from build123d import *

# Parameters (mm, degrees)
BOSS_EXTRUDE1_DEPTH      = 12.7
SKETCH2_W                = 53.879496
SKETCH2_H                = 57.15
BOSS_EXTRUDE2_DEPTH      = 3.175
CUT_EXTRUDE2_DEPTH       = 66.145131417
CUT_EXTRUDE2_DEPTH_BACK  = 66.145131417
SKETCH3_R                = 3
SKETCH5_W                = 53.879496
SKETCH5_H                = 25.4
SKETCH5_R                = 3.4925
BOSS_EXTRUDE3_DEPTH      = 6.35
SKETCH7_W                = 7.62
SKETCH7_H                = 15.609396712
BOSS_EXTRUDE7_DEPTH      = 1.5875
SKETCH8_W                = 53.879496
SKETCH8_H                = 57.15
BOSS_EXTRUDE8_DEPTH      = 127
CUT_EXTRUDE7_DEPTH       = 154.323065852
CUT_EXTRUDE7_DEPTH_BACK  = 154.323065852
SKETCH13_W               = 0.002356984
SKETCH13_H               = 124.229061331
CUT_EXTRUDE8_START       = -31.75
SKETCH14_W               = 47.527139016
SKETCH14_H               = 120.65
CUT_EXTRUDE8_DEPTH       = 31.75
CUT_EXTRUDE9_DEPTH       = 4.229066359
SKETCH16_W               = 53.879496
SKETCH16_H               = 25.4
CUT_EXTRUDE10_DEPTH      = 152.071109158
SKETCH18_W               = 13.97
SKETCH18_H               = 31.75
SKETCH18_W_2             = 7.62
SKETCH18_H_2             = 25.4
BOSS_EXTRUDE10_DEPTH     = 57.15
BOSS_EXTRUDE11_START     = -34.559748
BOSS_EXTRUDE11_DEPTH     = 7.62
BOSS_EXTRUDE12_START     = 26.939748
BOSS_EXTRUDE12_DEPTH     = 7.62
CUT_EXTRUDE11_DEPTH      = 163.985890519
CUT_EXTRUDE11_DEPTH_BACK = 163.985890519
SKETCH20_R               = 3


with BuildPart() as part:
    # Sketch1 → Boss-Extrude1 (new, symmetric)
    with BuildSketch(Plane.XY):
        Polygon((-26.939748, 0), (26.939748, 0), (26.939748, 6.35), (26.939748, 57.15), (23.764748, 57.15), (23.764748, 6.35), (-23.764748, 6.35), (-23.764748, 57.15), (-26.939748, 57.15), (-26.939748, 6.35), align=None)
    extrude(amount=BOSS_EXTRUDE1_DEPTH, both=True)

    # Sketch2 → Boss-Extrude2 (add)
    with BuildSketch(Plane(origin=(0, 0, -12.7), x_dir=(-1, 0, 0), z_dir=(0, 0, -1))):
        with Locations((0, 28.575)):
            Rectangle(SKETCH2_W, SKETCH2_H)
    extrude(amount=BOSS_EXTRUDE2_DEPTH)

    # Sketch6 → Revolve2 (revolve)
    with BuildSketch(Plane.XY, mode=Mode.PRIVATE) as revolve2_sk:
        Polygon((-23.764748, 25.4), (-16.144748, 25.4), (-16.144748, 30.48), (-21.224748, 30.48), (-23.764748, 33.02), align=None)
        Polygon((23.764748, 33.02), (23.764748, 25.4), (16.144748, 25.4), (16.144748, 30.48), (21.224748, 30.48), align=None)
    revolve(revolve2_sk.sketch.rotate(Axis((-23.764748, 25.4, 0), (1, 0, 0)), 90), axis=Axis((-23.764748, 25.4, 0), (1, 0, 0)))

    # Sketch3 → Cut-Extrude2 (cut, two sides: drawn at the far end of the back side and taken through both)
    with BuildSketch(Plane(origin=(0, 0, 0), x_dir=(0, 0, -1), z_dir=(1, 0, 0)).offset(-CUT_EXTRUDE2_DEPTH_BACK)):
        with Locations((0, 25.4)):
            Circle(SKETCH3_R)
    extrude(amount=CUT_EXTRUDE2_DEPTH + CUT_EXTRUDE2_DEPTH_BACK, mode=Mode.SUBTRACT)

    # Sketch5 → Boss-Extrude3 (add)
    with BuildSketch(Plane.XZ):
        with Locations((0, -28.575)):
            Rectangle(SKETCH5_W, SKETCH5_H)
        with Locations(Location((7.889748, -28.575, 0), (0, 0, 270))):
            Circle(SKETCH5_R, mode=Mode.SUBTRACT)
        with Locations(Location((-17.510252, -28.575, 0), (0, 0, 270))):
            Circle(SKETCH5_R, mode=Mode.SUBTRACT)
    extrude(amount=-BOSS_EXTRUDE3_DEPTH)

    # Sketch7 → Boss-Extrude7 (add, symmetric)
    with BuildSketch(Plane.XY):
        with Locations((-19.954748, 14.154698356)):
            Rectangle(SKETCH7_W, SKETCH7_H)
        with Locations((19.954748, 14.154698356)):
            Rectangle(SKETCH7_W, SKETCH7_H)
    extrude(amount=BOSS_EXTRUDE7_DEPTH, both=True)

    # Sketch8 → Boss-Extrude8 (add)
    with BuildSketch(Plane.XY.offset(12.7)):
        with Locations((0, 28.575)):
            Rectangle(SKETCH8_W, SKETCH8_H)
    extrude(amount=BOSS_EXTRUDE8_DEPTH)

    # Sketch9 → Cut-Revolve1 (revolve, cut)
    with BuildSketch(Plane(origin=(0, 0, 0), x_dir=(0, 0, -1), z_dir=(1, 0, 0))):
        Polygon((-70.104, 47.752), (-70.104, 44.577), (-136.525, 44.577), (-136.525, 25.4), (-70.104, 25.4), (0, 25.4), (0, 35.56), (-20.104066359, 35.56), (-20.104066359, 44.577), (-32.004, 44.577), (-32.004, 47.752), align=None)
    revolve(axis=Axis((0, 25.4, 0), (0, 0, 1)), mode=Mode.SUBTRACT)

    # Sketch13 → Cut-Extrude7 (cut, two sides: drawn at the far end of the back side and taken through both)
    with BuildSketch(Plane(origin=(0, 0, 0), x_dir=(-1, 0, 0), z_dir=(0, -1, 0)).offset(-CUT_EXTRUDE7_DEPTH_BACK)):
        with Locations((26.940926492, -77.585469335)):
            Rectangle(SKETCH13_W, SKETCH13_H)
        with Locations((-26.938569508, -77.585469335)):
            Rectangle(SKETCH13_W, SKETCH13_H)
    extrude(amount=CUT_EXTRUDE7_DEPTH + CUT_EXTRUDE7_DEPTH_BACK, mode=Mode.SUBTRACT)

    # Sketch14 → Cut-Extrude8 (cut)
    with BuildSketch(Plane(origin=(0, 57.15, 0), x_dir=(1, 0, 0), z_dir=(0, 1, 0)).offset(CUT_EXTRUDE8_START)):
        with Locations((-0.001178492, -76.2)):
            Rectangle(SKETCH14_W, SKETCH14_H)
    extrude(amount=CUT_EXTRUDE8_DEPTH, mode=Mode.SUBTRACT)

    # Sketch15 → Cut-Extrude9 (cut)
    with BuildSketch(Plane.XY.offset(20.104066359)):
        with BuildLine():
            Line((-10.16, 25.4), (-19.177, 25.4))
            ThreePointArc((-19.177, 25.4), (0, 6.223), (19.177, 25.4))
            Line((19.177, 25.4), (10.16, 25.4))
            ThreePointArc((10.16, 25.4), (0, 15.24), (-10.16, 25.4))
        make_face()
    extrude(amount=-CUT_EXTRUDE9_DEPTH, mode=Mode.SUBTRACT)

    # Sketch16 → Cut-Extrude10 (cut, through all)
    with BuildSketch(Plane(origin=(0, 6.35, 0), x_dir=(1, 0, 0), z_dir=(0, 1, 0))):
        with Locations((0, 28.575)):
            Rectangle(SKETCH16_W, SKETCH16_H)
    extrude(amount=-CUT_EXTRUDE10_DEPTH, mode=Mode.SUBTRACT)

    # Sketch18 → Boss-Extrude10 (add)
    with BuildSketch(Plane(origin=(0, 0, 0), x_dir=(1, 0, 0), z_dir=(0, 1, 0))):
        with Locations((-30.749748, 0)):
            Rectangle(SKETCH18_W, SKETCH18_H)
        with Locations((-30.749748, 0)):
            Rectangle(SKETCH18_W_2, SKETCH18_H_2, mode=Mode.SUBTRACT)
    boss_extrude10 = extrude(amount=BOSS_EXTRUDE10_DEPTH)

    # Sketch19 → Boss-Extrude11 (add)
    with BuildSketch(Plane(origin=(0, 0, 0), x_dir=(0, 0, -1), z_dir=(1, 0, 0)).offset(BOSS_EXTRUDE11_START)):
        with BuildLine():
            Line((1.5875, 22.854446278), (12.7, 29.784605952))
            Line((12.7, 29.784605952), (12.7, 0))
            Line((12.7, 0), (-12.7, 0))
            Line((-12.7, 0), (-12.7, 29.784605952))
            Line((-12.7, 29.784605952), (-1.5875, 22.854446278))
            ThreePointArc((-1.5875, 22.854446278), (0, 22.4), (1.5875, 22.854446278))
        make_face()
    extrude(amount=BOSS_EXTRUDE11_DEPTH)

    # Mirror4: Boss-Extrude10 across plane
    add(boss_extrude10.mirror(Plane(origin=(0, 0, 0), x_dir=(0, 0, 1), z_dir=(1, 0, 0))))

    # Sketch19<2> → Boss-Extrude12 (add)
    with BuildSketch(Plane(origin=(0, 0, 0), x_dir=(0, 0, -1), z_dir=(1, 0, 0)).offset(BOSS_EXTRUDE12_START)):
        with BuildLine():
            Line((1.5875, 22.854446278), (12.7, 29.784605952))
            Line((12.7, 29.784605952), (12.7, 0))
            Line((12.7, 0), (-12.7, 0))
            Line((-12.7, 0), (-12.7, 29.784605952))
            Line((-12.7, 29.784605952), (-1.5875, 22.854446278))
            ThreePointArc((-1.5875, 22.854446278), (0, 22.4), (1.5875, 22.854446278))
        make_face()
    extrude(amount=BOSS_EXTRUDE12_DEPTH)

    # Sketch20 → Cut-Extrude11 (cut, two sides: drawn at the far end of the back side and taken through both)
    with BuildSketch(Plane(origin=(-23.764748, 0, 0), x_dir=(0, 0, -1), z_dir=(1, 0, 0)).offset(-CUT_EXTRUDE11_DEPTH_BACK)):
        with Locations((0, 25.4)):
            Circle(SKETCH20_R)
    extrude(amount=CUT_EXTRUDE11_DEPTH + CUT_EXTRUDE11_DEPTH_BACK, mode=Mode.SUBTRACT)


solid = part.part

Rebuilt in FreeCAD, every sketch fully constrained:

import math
import FreeCAD as App
import Part
import Sketcher
Q = App.Units.Quantity

doc = App.newDocument("Part")
body = doc.addObject("PartDesign::Body", "Body")

sketch1 = body.newObject("Sketcher::SketchObject", "Sketch")
sketch1.AttachmentSupport = (doc.getObject("XY_Plane"), [""])
sketch1.MapMode = "FlatFace"
sketch1.addGeometry(Part.LineSegment(App.Vector(-26.9, 0, 0), App.Vector(26.9, 0, 0)), False)
sketch1.addGeometry(Part.LineSegment(App.Vector(26.9, 0, 0), App.Vector(26.9, 57.1, 0)), False)
sketch1.addGeometry(Part.LineSegment(App.Vector(26.9, 57.1, 0), App.Vector(23.8, 57.1, 0)), False)
sketch1.addGeometry(Part.LineSegment(App.Vector(23.8, 57.1, 0), App.Vector(23.8, 6.3, 0)), False)
sketch1.addGeometry(Part.LineSegment(App.Vector(23.8, 6.3, 0), App.Vector(-23.8, 6.3, 0)), False)
sketch1.addGeometry(Part.LineSegment(App.Vector(-23.8, 6.3, 0), App.Vector(-23.8, 57.1, 0)), False)
sketch1.addGeometry(Part.LineSegment(App.Vector(-23.8, 57.1, 0), App.Vector(-26.9, 57.1, 0)), False)
sketch1.addGeometry(Part.LineSegment(App.Vector(-26.9, 57.1, 0), App.Vector(-26.9, 0, 0)), False)
sketch1.addConstraint(Sketcher.Constraint("Coincident", 0, 2, 1, 1))
sketch1.addConstraint(Sketcher.Constraint("Coincident", 1, 2, 2, 1))
sketch1.addConstraint(Sketcher.Constraint("Coincident", 2, 2, 3, 1))
sketch1.addConstraint(Sketcher.Constraint("Coincident", 3, 2, 4, 1))
sketch1.addConstraint(Sketcher.Constraint("Coincident", 4, 2, 5, 1))
sketch1.addConstraint(Sketcher.Constraint("Coincident", 5, 2, 6, 1))
sketch1.addConstraint(Sketcher.Constraint("Coincident", 6, 2, 7, 1))
sketch1.addConstraint(Sketcher.Constraint("Coincident", 7, 2, 0, 1))
sketch1.addConstraint(Sketcher.Constraint("Horizontal", 0))
sketch1.addConstraint(Sketcher.Constraint("Vertical", 1))
sketch1.addConstraint(Sketcher.Constraint("Horizontal", 2))
sketch1.addConstraint(Sketcher.Constraint("Vertical", 3))
sketch1.addConstraint(Sketcher.Constraint("Horizontal", 4))
sketch1.addConstraint(Sketcher.Constraint("Vertical", 5))
sketch1.addConstraint(Sketcher.Constraint("Horizontal", 6))
sketch1.addConstraint(Sketcher.Constraint("Vertical", 7))
sketch1.addConstraint(Sketcher.Constraint("Symmetric", 0, 2, 7, 2, -1, 1))
sketch1.addConstraint(Sketcher.Constraint("Symmetric", 2, 2, 5, 2, -2))
sketch1.addConstraint(Sketcher.Constraint("DistanceY", 3, 2, 3, 1, Q("2 in")))
sketch1.addConstraint(Sketcher.Constraint("DistanceY", 1, 1, 1, 2, Q("2.25 in")))
sketch1.addConstraint(Sketcher.Constraint("DistanceX", 2, 2, 2, 1, Q("0.125 in")))
sketch1.addConstraint(Sketcher.Constraint("DistanceX", 0, 1, 0, 2, 53.879496))
pad1 = body.newObject("PartDesign::Pad", "Pad")
pad1.Profile = sketch1
pad1.Length = Q("1 in")
pad1.Midplane = True

sketch2 = body.newObject("Sketcher::SketchObject", "Sketch001")
sketch2.AttachmentSupport = (doc.getObject("XY_Plane"), [""])
sketch2.MapMode = "FlatFace"
sketch2.AttachmentOffset = App.Placement(App.Vector(0, 0, -0.5 * 25.4), App.Rotation())
sketch2.addGeometry(Part.LineSegment(App.Vector(27, 57, 0), App.Vector(27, 0, 0)), False)
sketch2.addGeometry(Part.LineSegment(App.Vector(27, 0, 0), App.Vector(-27, 0, 0)), False)
sketch2.addGeometry(Part.LineSegment(App.Vector(-27, 0, 0), App.Vector(-27, 57, 0)), False)
sketch2.addGeometry(Part.LineSegment(App.Vector(-27, 57, 0), App.Vector(27, 57, 0)), False)
sketch2.addConstraint(Sketcher.Constraint("Coincident", 0, 2, 1, 1))
sketch2.addConstraint(Sketcher.Constraint("Coincident", 1, 2, 2, 1))
sketch2.addConstraint(Sketcher.Constraint("Coincident", 2, 2, 3, 1))
sketch2.addConstraint(Sketcher.Constraint("Coincident", 3, 2, 0, 1))
sketch2.addConstraint(Sketcher.Constraint("Vertical", 0))
sketch2.addConstraint(Sketcher.Constraint("Horizontal", 1))
sketch2.addConstraint(Sketcher.Constraint("Vertical", 2))
sketch2.addConstraint(Sketcher.Constraint("Horizontal", 3))
sketch2.addConstraint(Sketcher.Constraint("Symmetric", 0, 2, 1, 2, -1, 1))
sketch2.addConstraint(Sketcher.Constraint("DistanceY", 0, 2, 0, 1, Q("2.25 in")))
sketch2.addConstraint(Sketcher.Constraint("DistanceX", 1, 2, 1, 1, 53.879496))
pad2 = body.newObject("PartDesign::Pad", "Pad001")
pad2.Profile = sketch2
pad2.Length = Q("0.125 in")
pad2.Reversed = True

sketch3 = body.newObject("Sketcher::SketchObject", "Sketch002")
sketch3.AttachmentSupport = (doc.getObject("XY_Plane"), [""])
sketch3.MapMode = "FlatFace"
sketch3.addGeometry(Part.LineSegment(App.Vector(-23.8, 25.4, 0), App.Vector(-16.1, 25.4, 0)), False)
sketch3.addGeometry(Part.LineSegment(App.Vector(-16.1, 25.4, 0), App.Vector(-16.1, 30.5, 0)), False)
sketch3.addGeometry(Part.LineSegment(App.Vector(-16.1, 30.5, 0), App.Vector(-21.2, 30.5, 0)), False)
sketch3.addGeometry(Part.LineSegment(App.Vector(-21.2, 30.5, 0), App.Vector(-23.8, 33, 0)), False)
sketch3.addGeometry(Part.LineSegment(App.Vector(-23.8, 33, 0), App.Vector(-23.8, 25.4, 0)), False)
sketch3.addGeometry(Part.LineSegment(App.Vector(23.8, 25.4, 0), App.Vector(23.8, 33, 0)), False)
sketch3.addGeometry(Part.LineSegment(App.Vector(23.8, 33, 0), App.Vector(21.2, 30.5, 0)), False)
sketch3.addGeometry(Part.LineSegment(App.Vector(21.2, 30.5, 0), App.Vector(16.1, 30.5, 0)), False)
sketch3.addGeometry(Part.LineSegment(App.Vector(16.1, 30.5, 0), App.Vector(16.1, 25.4, 0)), False)
sketch3.addGeometry(Part.LineSegment(App.Vector(16.1, 25.4, 0), App.Vector(23.8, 25.4, 0)), False)
sketch3.addGeometry(Part.LineSegment(App.Vector(-23.8, 25.4, 0), App.Vector(23.8, 25.4, 0)), True)
sketch3.addConstraint(Sketcher.Constraint("Coincident", 0, 2, 1, 1))
sketch3.addConstraint(Sketcher.Constraint("Coincident", 1, 2, 2, 1))
sketch3.addConstraint(Sketcher.Constraint("Coincident", 2, 2, 3, 1))
sketch3.addConstraint(Sketcher.Constraint("Coincident", 3, 2, 4, 1))
sketch3.addConstraint(Sketcher.Constraint("Coincident", 4, 2, 0, 1))
sketch3.addConstraint(Sketcher.Constraint("Coincident", 5, 2, 6, 1))
sketch3.addConstraint(Sketcher.Constraint("Coincident", 6, 2, 7, 1))
sketch3.addConstraint(Sketcher.Constraint("Coincident", 7, 2, 8, 1))
sketch3.addConstraint(Sketcher.Constraint("Coincident", 8, 2, 9, 1))
sketch3.addConstraint(Sketcher.Constraint("Coincident", 9, 2, 5, 1))
sketch3.addConstraint(Sketcher.Constraint("Horizontal", 0))
sketch3.addConstraint(Sketcher.Constraint("Vertical", 1))
sketch3.addConstraint(Sketcher.Constraint("Horizontal", 2))
sketch3.addConstraint(Sketcher.Constraint("Vertical", 4))
sketch3.addConstraint(Sketcher.Constraint("Vertical", 5))
sketch3.addConstraint(Sketcher.Constraint("Horizontal", 7))
sketch3.addConstraint(Sketcher.Constraint("Vertical", 8))
sketch3.addConstraint(Sketcher.Constraint("Horizontal", 9))
sketch3.addConstraint(Sketcher.Constraint("Horizontal", 10))
sketch3.addConstraint(Sketcher.Constraint("Coincident", 10, 1, 4, 2))
sketch3.addConstraint(Sketcher.Constraint("Coincident", 10, 2, 9, 2))
sketch3.addConstraint(Sketcher.Constraint("Symmetric", 3, 2, 5, 2, -2))
sketch3.addConstraint(Sketcher.Constraint("Symmetric", 2, 2, 6, 2, -2))
sketch3.addConstraint(Sketcher.Constraint("Perpendicular", 3, 6))
sketch3.addConstraint(Sketcher.Constraint("Equal", 2, 7))
sketch3.addConstraint(Sketcher.Constraint("Equal", 7, 1))
sketch3.addConstraint(Sketcher.Constraint("DistanceX", 0, 1, 0, 2, Q("0.3 in")))
sketch3.addConstraint(Sketcher.Constraint("DistanceX", 2, 2, 2, 1, Q("0.2 in")))
sketch3.addConstraint(Sketcher.Constraint("DistanceY", -1, 1, 0, 2, Q("1 in")))
sketch3.addConstraint(Sketcher.Constraint("DistanceX", 10, 1, 10, 2, 47.529496))
revolution = body.newObject("PartDesign::Revolution", "Revolution")
revolution.Profile = sketch3
revolution.ReferenceAxis = (sketch3, ["Axis0"])
revolution.Angle = 360

sketch4 = body.newObject("Sketcher::SketchObject", "Sketch003")
sketch4.AttachmentSupport = (doc.getObject("YZ_Plane"), [""])
sketch4.MapMode = "FlatFace"
sketch4.addGeometry(Part.Circle(App.Vector(25.4, 0, 0), App.Vector(0, 0, 1), 3), False)
sketch4.addConstraint(Sketcher.Constraint("PointOnObject", 0, 3, -1))
sketch4.addConstraint(Sketcher.Constraint("DistanceX", -1, 1, 0, 3, Q("1 in")))
sketch4.addConstraint(Sketcher.Constraint("Diameter", 0, 6.0))
pocket1 = body.newObject("PartDesign::Pocket", "Pocket")
pocket1.Profile = sketch4
pocket1.Type = "ThroughAll"
pocket1.Midplane = True

sketch5 = body.newObject("Sketcher::SketchObject", "Sketch004")
sketch5.AttachmentSupport = (doc.getObject("XZ_Plane"), [""])
sketch5.MapMode = "FlatFace"
sketch5.addGeometry(Part.LineSegment(App.Vector(-26.9, -15.9, 0), App.Vector(-26.9, -41.3, 0)), False)
sketch5.addGeometry(Part.LineSegment(App.Vector(-26.9, -41.3, 0), App.Vector(26.9, -41.3, 0)), False)
sketch5.addGeometry(Part.LineSegment(App.Vector(26.9, -41.3, 0), App.Vector(26.9, -15.9, 0)), False)
sketch5.addGeometry(Part.LineSegment(App.Vector(26.9, -15.9, 0), App.Vector(-26.9, -15.9, 0)), False)
sketch5.addGeometry(Part.Circle(App.Vector(-17.5, -28.6, 0), App.Vector(0, 0, 1), 3.5), False)
sketch5.addGeometry(Part.Circle(App.Vector(7.9, -28.6, 0), App.Vector(0, 0, 1), 3.5), False)
sketch5.addConstraint(Sketcher.Constraint("Coincident", 0, 2, 1, 1))
sketch5.addConstraint(Sketcher.Constraint("Coincident", 1, 2, 2, 1))
sketch5.addConstraint(Sketcher.Constraint("Coincident", 2, 2, 3, 1))
sketch5.addConstraint(Sketcher.Constraint("Coincident", 3, 2, 0, 1))
sketch5.addConstraint(Sketcher.Constraint("Vertical", 0))
sketch5.addConstraint(Sketcher.Constraint("Horizontal", 1))
sketch5.addConstraint(Sketcher.Constraint("Vertical", 2))
sketch5.addConstraint(Sketcher.Constraint("Horizontal", 3))
sketch5.addConstraint(Sketcher.Constraint("Equal", 4, 5))
sketch5.addConstraint(Sketcher.Constraint("Horizontal", 4, 3, 5, 3))
sketch5.addConstraint(Sketcher.Constraint("DistanceY", 0, 2, 0, 1, Q("1 in")))
sketch5.addConstraint(Sketcher.Constraint("Diameter", 4, Q("0.275 in")))
sketch5.addConstraint(Sketcher.Constraint("DistanceX", 4, 3, 5, 3, Q("1 in")))
sketch5.addConstraint(Sketcher.Constraint("DistanceY", 0, 2, 4, 3, Q("0.5 in")))
sketch5.addConstraint(Sketcher.Constraint("DistanceX", 5, 3, 1, 2, Q("0.75 in")))
sketch5.addConstraint(Sketcher.Constraint("DistanceY", 4, 3, -1, 1, Q("1.125 in")))
sketch5.addConstraint(Sketcher.Constraint("DistanceX", 1, 1, 1, 2, 53.879496))
sketch5.addConstraint(Sketcher.Constraint("DistanceX", 0, 2, -1, 1, 26.939748))
pad3 = body.newObject("PartDesign::Pad", "Pad002")
pad3.Profile = sketch5
pad3.Length = Q("0.25 in")
pad3.Reversed = True

sketch6 = body.newObject("Sketcher::SketchObject", "Sketch005")
sketch6.AttachmentSupport = (doc.getObject("XY_Plane"), [""])
sketch6.MapMode = "FlatFace"
sketch6.addGeometry(Part.LineSegment(App.Vector(-24, 22, 0), App.Vector(-24, 6, 0)), False)
sketch6.addGeometry(Part.LineSegment(App.Vector(-24, 6, 0), App.Vector(-16, 6, 0)), False)
sketch6.addGeometry(Part.LineSegment(App.Vector(-16, 6, 0), App.Vector(-16, 22, 0)), False)
sketch6.addGeometry(Part.LineSegment(App.Vector(-16, 22, 0), App.Vector(-24, 22, 0)), False)
sketch6.addGeometry(Part.LineSegment(App.Vector(16, 22, 0), App.Vector(16, 6, 0)), False)
sketch6.addGeometry(Part.LineSegment(App.Vector(16, 6, 0), App.Vector(24, 6, 0)), False)
sketch6.addGeometry(Part.LineSegment(App.Vector(24, 6, 0), App.Vector(24, 22, 0)), False)
sketch6.addGeometry(Part.LineSegment(App.Vector(24, 22, 0), App.Vector(16, 22, 0)), False)
sketch6.addConstraint(Sketcher.Constraint("Coincident", 0, 2, 1, 1))
sketch6.addConstraint(Sketcher.Constraint("Coincident", 1, 2, 2, 1))
sketch6.addConstraint(Sketcher.Constraint("Coincident", 2, 2, 3, 1))
sketch6.addConstraint(Sketcher.Constraint("Coincident", 3, 2, 0, 1))
sketch6.addConstraint(Sketcher.Constraint("Coincident", 4, 2, 5, 1))
sketch6.addConstraint(Sketcher.Constraint("Coincident", 5, 2, 6, 1))
sketch6.addConstraint(Sketcher.Constraint("Coincident", 6, 2, 7, 1))
sketch6.addConstraint(Sketcher.Constraint("Coincident", 7, 2, 4, 1))
sketch6.addConstraint(Sketcher.Constraint("Vertical", 0))
sketch6.addConstraint(Sketcher.Constraint("Horizontal", 1))
sketch6.addConstraint(Sketcher.Constraint("Vertical", 2))
sketch6.addConstraint(Sketcher.Constraint("Horizontal", 3))
sketch6.addConstraint(Sketcher.Constraint("Vertical", 4))
sketch6.addConstraint(Sketcher.Constraint("Horizontal", 5))
sketch6.addConstraint(Sketcher.Constraint("Vertical", 6))
sketch6.addConstraint(Sketcher.Constraint("Horizontal", 7))
sketch6.addConstraint(Sketcher.Constraint("Symmetric", 1, 2, 4, 2, -2))
sketch6.addConstraint(Sketcher.Constraint("Symmetric", 3, 2, 6, 2, -2))
sketch6.addConstraint(Sketcher.Constraint("DistanceX", 1, 1, 1, 2, Q("0.3 in")))
sketch6.addConstraint(Sketcher.Constraint("DistanceY", -1, 1, 0, 2, Q("0.25 in")))
sketch6.addConstraint(Sketcher.Constraint("DistanceY", 0, 2, 0, 1, 15.609397))
sketch6.addConstraint(Sketcher.Constraint("DistanceX", 0, 2, -1, 1, 23.764748))
pad4 = body.newObject("PartDesign::Pad", "Pad003")
pad4.Profile = sketch6
pad4.Length = Q("0.125 in")
pad4.Midplane = True

sketch7 = body.newObject("Sketcher::SketchObject", "Sketch006")
sketch7.AttachmentSupport = (doc.getObject("XY_Plane"), [""])
sketch7.MapMode = "FlatFace"
sketch7.AttachmentOffset = App.Placement(App.Vector(0, 0, 0.5 * 25.4), App.Rotation())
sketch7.addGeometry(Part.LineSegment(App.Vector(-27, 57, 0), App.Vector(-27, 0, 0)), False)
sketch7.addGeometry(Part.LineSegment(App.Vector(-27, 0, 0), App.Vector(27, 0, 0)), False)
sketch7.addGeometry(Part.LineSegment(App.Vector(27, 0, 0), App.Vector(27, 57, 0)), False)
sketch7.addGeometry(Part.LineSegment(App.Vector(27, 57, 0), App.Vector(-27, 57, 0)), False)
sketch7.addConstraint(Sketcher.Constraint("Coincident", 0, 2, 1, 1))
sketch7.addConstraint(Sketcher.Constraint("Coincident", 1, 2, 2, 1))
sketch7.addConstraint(Sketcher.Constraint("Coincident", 2, 2, 3, 1))
sketch7.addConstraint(Sketcher.Constraint("Coincident", 3, 2, 0, 1))
sketch7.addConstraint(Sketcher.Constraint("Vertical", 0))
sketch7.addConstraint(Sketcher.Constraint("Horizontal", 1))
sketch7.addConstraint(Sketcher.Constraint("Vertical", 2))
sketch7.addConstraint(Sketcher.Constraint("Horizontal", 3))
sketch7.addConstraint(Sketcher.Constraint("Symmetric", 0, 2, 1, 2, -1, 1))
sketch7.addConstraint(Sketcher.Constraint("DistanceY", 0, 2, 0, 1, Q("2.25 in")))
sketch7.addConstraint(Sketcher.Constraint("DistanceX", 1, 1, 1, 2, 53.879496))
pad5 = body.newObject("PartDesign::Pad", "Pad004")
pad5.Profile = sketch7
pad5.Length = Q("5 in")

sketch8 = body.newObject("Sketcher::SketchObject", "Sketch007")
sketch8.AttachmentSupport = (doc.getObject("YZ_Plane"), [""])
sketch8.MapMode = "FlatFace"
sketch8.addGeometry(Part.LineSegment(App.Vector(47.8, 70.1, 0), App.Vector(44.6, 70.1, 0)), False)
sketch8.addGeometry(Part.LineSegment(App.Vector(44.6, 70.1, 0), App.Vector(44.6, 136.5, 0)), False)
sketch8.addGeometry(Part.LineSegment(App.Vector(44.6, 136.5, 0), App.Vector(25.4, 136.5, 0)), False)
sketch8.addGeometry(Part.LineSegment(App.Vector(25.4, 136.5, 0), App.Vector(25.4, 0, 0)), False)
sketch8.addGeometry(Part.LineSegment(App.Vector(25.4, 0, 0), App.Vector(35.6, 0, 0)), False)
sketch8.addGeometry(Part.LineSegment(App.Vector(35.6, 0, 0), App.Vector(35.6, 20.1, 0)), False)
sketch8.addGeometry(Part.LineSegment(App.Vector(35.6, 20.1, 0), App.Vector(44.6, 20.1, 0)), False)
sketch8.addGeometry(Part.LineSegment(App.Vector(44.6, 20.1, 0), App.Vector(44.6, 32, 0)), False)
sketch8.addGeometry(Part.LineSegment(App.Vector(44.6, 32, 0), App.Vector(47.8, 32, 0)), False)
sketch8.addGeometry(Part.LineSegment(App.Vector(47.8, 32, 0), App.Vector(47.8, 70.1, 0)), False)
sketch8.addGeometry(Part.LineSegment(App.Vector(25.4, 0, 0), App.Vector(25.4, 136.5, 0)), True)
sketch8.addConstraint(Sketcher.Constraint("Coincident", 0, 2, 1, 1))
sketch8.addConstraint(Sketcher.Constraint("Coincident", 1, 2, 2, 1))
sketch8.addConstraint(Sketcher.Constraint("Coincident", 2, 2, 3, 1))
sketch8.addConstraint(Sketcher.Constraint("Coincident", 3, 2, 4, 1))
sketch8.addConstraint(Sketcher.Constraint("Coincident", 4, 2, 5, 1))
sketch8.addConstraint(Sketcher.Constraint("Coincident", 5, 2, 6, 1))
sketch8.addConstraint(Sketcher.Constraint("Coincident", 6, 2, 7, 1))
sketch8.addConstraint(Sketcher.Constraint("Coincident", 7, 2, 8, 1))
sketch8.addConstraint(Sketcher.Constraint("Coincident", 8, 2, 9, 1))
sketch8.addConstraint(Sketcher.Constraint("Coincident", 9, 2, 0, 1))
sketch8.addConstraint(Sketcher.Constraint("Horizontal", 0))
sketch8.addConstraint(Sketcher.Constraint("Vertical", 1))
sketch8.addConstraint(Sketcher.Constraint("Horizontal", 2))
sketch8.addConstraint(Sketcher.Constraint("Vertical", 3))
sketch8.addConstraint(Sketcher.Constraint("Horizontal", 4))
sketch8.addConstraint(Sketcher.Constraint("Vertical", 5))
sketch8.addConstraint(Sketcher.Constraint("Horizontal", 6))
sketch8.addConstraint(Sketcher.Constraint("Vertical", 7))
sketch8.addConstraint(Sketcher.Constraint("Horizontal", 8))
sketch8.addConstraint(Sketcher.Constraint("Vertical", 9))
sketch8.addConstraint(Sketcher.Constraint("Vertical", 10))
sketch8.addConstraint(Sketcher.Constraint("Coincident", 10, 1, 3, 2))
sketch8.addConstraint(Sketcher.Constraint("PointOnObject", 3, 2, -1))
sketch8.addConstraint(Sketcher.Constraint("Horizontal", 1, 2, 10, 2))
sketch8.addConstraint(Sketcher.Constraint("Vertical", 1, 2, 6, 2))
sketch8.addConstraint(Sketcher.Constraint("DistanceX", 4, 1, 4, 2, Q("0.4 in")))
sketch8.addConstraint(Sketcher.Constraint("DistanceY", 9, 1, 9, 2, Q("1.5 in")))
sketch8.addConstraint(Sketcher.Constraint("DistanceX", -1, 1, 2, 2, Q("1 in")))
sketch8.addConstraint(Sketcher.Constraint("DistanceX", 0, 2, 0, 1, Q("0.125 in")))
sketch8.addConstraint(Sketcher.Constraint("DistanceX", 2, 2, 2, 1, Q("0.755 in")))
sketch8.addConstraint(Sketcher.Constraint("DistanceY", 1, 1, 1, 2, Q("2.615 in")))
sketch8.addConstraint(Sketcher.Constraint("DistanceY", 3, 2, 3, 1, Q("5.375 in")))
sketch8.addConstraint(Sketcher.Constraint("DistanceY", 5, 1, 5, 2, 20.104066))
groove = body.newObject("PartDesign::Groove", "Groove")
groove.Profile = sketch8
groove.ReferenceAxis = (sketch8, ["Axis0"])
groove.Angle = 360

sketch9 = body.newObject("Sketcher::SketchObject", "Sketch008")
sketch9.AttachmentSupport = (doc.getObject("XZ_Plane"), [""])
sketch9.MapMode = "FlatFace"
sketch9.addGeometry(Part.LineSegment(App.Vector(-26.9397, 15.4709, 0), App.Vector(-26.9397, 139.7, 0)), False)
sketch9.addGeometry(Part.LineSegment(App.Vector(-26.9397, 139.7, 0), App.Vector(-26.9421, 139.7, 0)), False)
sketch9.addGeometry(Part.LineSegment(App.Vector(-26.9421, 139.7, 0), App.Vector(-26.9421, 15.4709, 0)), False)
sketch9.addGeometry(Part.LineSegment(App.Vector(-26.9421, 15.4709, 0), App.Vector(-26.9397, 15.4709, 0)), False)
sketch9.addGeometry(Part.LineSegment(App.Vector(26.9397, 15.4709, 0), App.Vector(26.9397, 139.7, 0)), False)
sketch9.addGeometry(Part.LineSegment(App.Vector(26.9397, 139.7, 0), App.Vector(26.9374, 139.7, 0)), False)
sketch9.addGeometry(Part.LineSegment(App.Vector(26.9374, 139.7, 0), App.Vector(26.9374, 15.4709, 0)), False)
sketch9.addGeometry(Part.LineSegment(App.Vector(26.9374, 15.4709, 0), App.Vector(26.9397, 15.4709, 0)), False)
sketch9.addConstraint(Sketcher.Constraint("Coincident", 0, 2, 1, 1))
sketch9.addConstraint(Sketcher.Constraint("Coincident", 1, 2, 2, 1))
sketch9.addConstraint(Sketcher.Constraint("Coincident", 2, 2, 3, 1))
sketch9.addConstraint(Sketcher.Constraint("Coincident", 3, 2, 0, 1))
sketch9.addConstraint(Sketcher.Constraint("Coincident", 4, 2, 5, 1))
sketch9.addConstraint(Sketcher.Constraint("Coincident", 5, 2, 6, 1))
sketch9.addConstraint(Sketcher.Constraint("Coincident", 6, 2, 7, 1))
sketch9.addConstraint(Sketcher.Constraint("Coincident", 7, 2, 4, 1))
sketch9.addConstraint(Sketcher.Constraint("Vertical", 0))
sketch9.addConstraint(Sketcher.Constraint("Horizontal", 1))
sketch9.addConstraint(Sketcher.Constraint("Vertical", 2))
sketch9.addConstraint(Sketcher.Constraint("Horizontal", 3))
sketch9.addConstraint(Sketcher.Constraint("Vertical", 4))
sketch9.addConstraint(Sketcher.Constraint("Horizontal", 5))
sketch9.addConstraint(Sketcher.Constraint("Vertical", 6))
sketch9.addConstraint(Sketcher.Constraint("Horizontal", 7))
sketch9.addConstraint(Sketcher.Constraint("Symmetric", 0, 2, 4, 2, -2))
sketch9.addConstraint(Sketcher.Constraint("Horizontal", 3, 2, 6, 2))
sketch9.addConstraint(Sketcher.Constraint("Equal", 3, 5))
sketch9.addConstraint(Sketcher.Constraint("DistanceY", -1, 1, 0, 2, Q("5.5 in")))
sketch9.addConstraint(Sketcher.Constraint("DistanceY", 0, 1, 0, 2, 124.229061))
sketch9.addConstraint(Sketcher.Constraint("DistanceX", 1, 2, 1, 1, 0.002357))
sketch9.addConstraint(Sketcher.Constraint("DistanceX", 0, 2, -1, 1, 26.939748))
pocket2 = body.newObject("PartDesign::Pocket", "Pocket001")
pocket2.Profile = sketch9
pocket2.Type = "ThroughAll"
pocket2.Midplane = True

sketch10 = body.newObject("Sketcher::SketchObject", "Sketch009")
sketch10.AttachmentSupport = (doc.getObject("XZ_Plane"), [""])
sketch10.MapMode = "FlatFace"
sketch10.AttachmentOffset = App.Placement(App.Vector(0, 0, -1 * 25.4), App.Rotation())
sketch10.addGeometry(Part.LineSegment(App.Vector(-24, 16, 0), App.Vector(-24, 137, 0)), False)
sketch10.addGeometry(Part.LineSegment(App.Vector(-24, 137, 0), App.Vector(24, 137, 0)), False)
sketch10.addGeometry(Part.LineSegment(App.Vector(24, 137, 0), App.Vector(24, 16, 0)), False)
sketch10.addGeometry(Part.LineSegment(App.Vector(24, 16, 0), App.Vector(-24, 16, 0)), False)
sketch10.addConstraint(Sketcher.Constraint("Coincident", 0, 2, 1, 1))
sketch10.addConstraint(Sketcher.Constraint("Coincident", 1, 2, 2, 1))
sketch10.addConstraint(Sketcher.Constraint("Coincident", 2, 2, 3, 1))
sketch10.addConstraint(Sketcher.Constraint("Coincident", 3, 2, 0, 1))
sketch10.addConstraint(Sketcher.Constraint("Vertical", 0))
sketch10.addConstraint(Sketcher.Constraint("Horizontal", 1))
sketch10.addConstraint(Sketcher.Constraint("Vertical", 2))
sketch10.addConstraint(Sketcher.Constraint("Horizontal", 3))
sketch10.addConstraint(Sketcher.Constraint("DistanceY", 0, 1, 0, 2, Q("4.75 in")))
sketch10.addConstraint(Sketcher.Constraint("DistanceY", -1, 1, 0, 2, Q("5.375 in")))
sketch10.addConstraint(Sketcher.Constraint("DistanceX", 1, 1, 1, 2, 47.527139))
sketch10.addConstraint(Sketcher.Constraint("DistanceX", 0, 2, -1, 1, 23.764748))
pocket3 = body.newObject("PartDesign::Pocket", "Pocket002")
pocket3.Profile = sketch10
pocket3.Length = Q("1.25 in")

sketch11 = body.newObject("Sketcher::SketchObject", "Sketch010")
sketch11.AttachmentSupport = (doc.getObject("XY_Plane"), [""])
sketch11.MapMode = "FlatFace"
sketch11.AttachmentOffset = App.Placement(App.Vector(0, 0, 20.104066), App.Rotation())
sketch11.addGeometry(Part.LineSegment(App.Vector(-10, 25, 0), App.Vector(-19, 25, 0)), False)
sketch11.addGeometry(Part.ArcOfCircle(Part.Circle(App.Vector(0, 25, 0), App.Vector(0, 0, 1), 19), math.radians(180), math.radians(360)), False)
sketch11.addGeometry(Part.LineSegment(App.Vector(19, 25, 0), App.Vector(10, 25, 0)), False)
sketch11.addGeometry(Part.ArcOfCircle(Part.Circle(App.Vector(0, 25, 0), App.Vector(0, 0, 1), 10), math.radians(180), math.radians(360)), False)
sketch11.addConstraint(Sketcher.Constraint("Coincident", 0, 2, 1, 1))
sketch11.addConstraint(Sketcher.Constraint("Coincident", 1, 2, 2, 1))
sketch11.addConstraint(Sketcher.Constraint("Coincident", 2, 2, 3, 2))
sketch11.addConstraint(Sketcher.Constraint("Coincident", 3, 1, 0, 1))
sketch11.addConstraint(Sketcher.Constraint("Horizontal", 0))
sketch11.addConstraint(Sketcher.Constraint("Horizontal", 2))
sketch11.addConstraint(Sketcher.Constraint("Coincident", 3, 3, 1, 3))
sketch11.addConstraint(Sketcher.Constraint("Symmetric", 0, 2, 1, 2, -2))
sketch11.addConstraint(Sketcher.Constraint("Horizontal", 3, 3, 0, 2))
sketch11.addConstraint(Sketcher.Constraint("Radius", 3, Q("0.4 in")))
sketch11.addConstraint(Sketcher.Constraint("DistanceY", -1, 1, 1, 3, Q("1 in")))
sketch11.addConstraint(Sketcher.Constraint("Radius", 1, Q("0.755 in")))
pocket4 = body.newObject("PartDesign::Pocket", "Pocket003")
pocket4.Profile = sketch11
pocket4.Length = 4.229066

sketch12 = body.newObject("Sketcher::SketchObject", "Sketch011")
sketch12.AttachmentSupport = (doc.getObject("XZ_Plane"), [""])
sketch12.MapMode = "FlatFace"
sketch12.AttachmentOffset = App.Placement(App.Vector(0, 0, -0.25 * 25.4), App.Rotation())
sketch12.addGeometry(Part.LineSegment(App.Vector(-27, -41, 0), App.Vector(-27, -16, 0)), False)
sketch12.addGeometry(Part.LineSegment(App.Vector(-27, -16, 0), App.Vector(27, -16, 0)), False)
sketch12.addGeometry(Part.LineSegment(App.Vector(27, -16, 0), App.Vector(27, -41, 0)), False)
sketch12.addGeometry(Part.LineSegment(App.Vector(27, -41, 0), App.Vector(-27, -41, 0)), False)
sketch12.addConstraint(Sketcher.Constraint("Coincident", 0, 2, 1, 1))
sketch12.addConstraint(Sketcher.Constraint("Coincident", 1, 2, 2, 1))
sketch12.addConstraint(Sketcher.Constraint("Coincident", 2, 2, 3, 1))
sketch12.addConstraint(Sketcher.Constraint("Coincident", 3, 2, 0, 1))
sketch12.addConstraint(Sketcher.Constraint("Vertical", 0))
sketch12.addConstraint(Sketcher.Constraint("Horizontal", 1))
sketch12.addConstraint(Sketcher.Constraint("Vertical", 2))
sketch12.addConstraint(Sketcher.Constraint("Horizontal", 3))
sketch12.addConstraint(Sketcher.Constraint("DistanceY", 0, 1, 0, 2, Q("1 in")))
sketch12.addConstraint(Sketcher.Constraint("DistanceY", 0, 2, -1, 1, Q("0.625 in")))
sketch12.addConstraint(Sketcher.Constraint("DistanceX", 1, 1, 1, 2, 53.879496))
sketch12.addConstraint(Sketcher.Constraint("DistanceX", 0, 2, -1, 1, 26.939748))
pocket5 = body.newObject("PartDesign::Pocket", "Pocket004")
pocket5.Profile = sketch12
pocket5.Type = "ThroughAll"
pocket5.Reversed = True

sketch13 = body.newObject("Sketcher::SketchObject", "Sketch012")
sketch13.AttachmentSupport = (doc.getObject("XZ_Plane"), [""])
sketch13.MapMode = "FlatFace"
sketch13.addGeometry(Part.LineSegment(App.Vector(-38, -16, 0), App.Vector(-38, 16, 0)), False)
sketch13.addGeometry(Part.LineSegment(App.Vector(-38, 16, 0), App.Vector(-24, 16, 0)), False)
sketch13.addGeometry(Part.LineSegment(App.Vector(-24, 16, 0), App.Vector(-24, -16, 0)), False)
sketch13.addGeometry(Part.LineSegment(App.Vector(-24, -16, 0), App.Vector(-38, -16, 0)), False)
sketch13.addGeometry(Part.LineSegment(App.Vector(-27, 13, 0), App.Vector(-35, 13, 0)), False)
sketch13.addGeometry(Part.LineSegment(App.Vector(-35, 13, 0), App.Vector(-35, -13, 0)), False)
sketch13.addGeometry(Part.LineSegment(App.Vector(-35, -13, 0), App.Vector(-27, -13, 0)), False)
sketch13.addGeometry(Part.LineSegment(App.Vector(-27, -13, 0), App.Vector(-27, 13, 0)), False)
sketch13.addConstraint(Sketcher.Constraint("Coincident", 0, 2, 1, 1))
sketch13.addConstraint(Sketcher.Constraint("Coincident", 1, 2, 2, 1))
sketch13.addConstraint(Sketcher.Constraint("Coincident", 2, 2, 3, 1))
sketch13.addConstraint(Sketcher.Constraint("Coincident", 3, 2, 0, 1))
sketch13.addConstraint(Sketcher.Constraint("Coincident", 4, 2, 5, 1))
sketch13.addConstraint(Sketcher.Constraint("Coincident", 5, 2, 6, 1))
sketch13.addConstraint(Sketcher.Constraint("Coincident", 6, 2, 7, 1))
sketch13.addConstraint(Sketcher.Constraint("Coincident", 7, 2, 4, 1))
sketch13.addConstraint(Sketcher.Constraint("Vertical", 0))
sketch13.addConstraint(Sketcher.Constraint("Horizontal", 1))
sketch13.addConstraint(Sketcher.Constraint("Vertical", 2))
sketch13.addConstraint(Sketcher.Constraint("Horizontal", 3))
sketch13.addConstraint(Sketcher.Constraint("Horizontal", 4))
sketch13.addConstraint(Sketcher.Constraint("Vertical", 5))
sketch13.addConstraint(Sketcher.Constraint("Horizontal", 6))
sketch13.addConstraint(Sketcher.Constraint("Vertical", 7))
sketch13.addConstraint(Sketcher.Constraint("DistanceY", 5, 2, 5, 1, Q("1 in")))
sketch13.addConstraint(Sketcher.Constraint("DistanceX", 4, 2, 4, 1, Q("0.3 in")))
sketch13.addConstraint(Sketcher.Constraint("DistanceX", 1, 1, 1, 2, Q("0.55 in")))
sketch13.addConstraint(Sketcher.Constraint("DistanceY", 0, 1, 0, 2, Q("1.25 in")))
sketch13.addConstraint(Sketcher.Constraint("DistanceY", -1, 1, 4, 2, Q("0.5 in")))
sketch13.addConstraint(Sketcher.Constraint("DistanceY", -1, 1, 0, 2, Q("0.625 in")))
sketch13.addConstraint(Sketcher.Constraint("DistanceX", 0, 2, 4, 2, Q("0.125 in")))
sketch13.addConstraint(Sketcher.Constraint("DistanceX", 0, 2, -1, 1, 37.734748))
pad6 = body.newObject("PartDesign::Pad", "Pad005")
pad6.Profile = sketch13
pad6.Length = Q("2.25 in")
pad6.Reversed = True

sketch14 = body.newObject("Sketcher::SketchObject", "Sketch013")
sketch14.AttachmentSupport = (doc.getObject("YZ_Plane"), [""])
sketch14.MapMode = "FlatFace"
sketch14.AttachmentOffset = App.Placement(App.Vector(0, 0, -34.559748), App.Rotation())
sketch14.addGeometry(Part.LineSegment(App.Vector(29.8, -12.7, 0), App.Vector(22.9, -1.6, 0)), False)
sketch14.addGeometry(Part.ArcOfCircle(Part.Circle(App.Vector(25.4, 0, 0), App.Vector(0, 0, 1), 3), math.radians(148), math.radians(212)), False)
sketch14.addGeometry(Part.LineSegment(App.Vector(22.9, 1.6, 0), App.Vector(29.8, 12.7, 0)), False)
sketch14.addGeometry(Part.LineSegment(App.Vector(29.8, 12.7, 0), App.Vector(0, 12.7, 0)), False)
sketch14.addGeometry(Part.LineSegment(App.Vector(0, 12.7, 0), App.Vector(0, -12.7, 0)), False)
sketch14.addGeometry(Part.LineSegment(App.Vector(0, -12.7, 0), App.Vector(29.8, -12.7, 0)), False)
sketch14.addConstraint(Sketcher.Constraint("Tangent", 0, 2, 1, 2))
sketch14.addConstraint(Sketcher.Constraint("Tangent", 1, 1, 2, 1))
sketch14.addConstraint(Sketcher.Constraint("Coincident", 2, 2, 3, 1))
sketch14.addConstraint(Sketcher.Constraint("Coincident", 3, 2, 4, 1))
sketch14.addConstraint(Sketcher.Constraint("Coincident", 4, 2, 5, 1))
sketch14.addConstraint(Sketcher.Constraint("Coincident", 5, 2, 0, 1))
sketch14.addConstraint(Sketcher.Constraint("Horizontal", 3))
sketch14.addConstraint(Sketcher.Constraint("Vertical", 4))
sketch14.addConstraint(Sketcher.Constraint("Horizontal", 5))
sketch14.addConstraint(Sketcher.Constraint("Symmetric", 3, 2, 4, 2, -1, 1))
sketch14.addConstraint(Sketcher.Constraint("Symmetric", 0, 2, 1, 1, -1))
sketch14.addConstraint(Sketcher.Constraint("DistanceY", 4, 2, 4, 1, Q("1 in")))
sketch14.addConstraint(Sketcher.Constraint("DistanceX", -1, 1, 1, 3, Q("1 in")))
sketch14.addConstraint(Sketcher.Constraint("Radius", 1, 3.0))
sketch14.addConstraint(Sketcher.Constraint("DistanceY", 0, 2, -1, 1, Q("0.0625 in")))
pad7 = body.newObject("PartDesign::Pad", "Pad006")
pad7.Profile = sketch14
pad7.Length = Q("0.3 in")
doc.recompute()

mirrored = body.newObject("PartDesign::Mirrored", "Mirrored")
mirrored.Originals = [pad6]
mirrored.MirrorPlane = (doc.getObject("YZ_Plane"), [""])
body.Tip = mirrored

sketch15 = body.newObject("Sketcher::SketchObject", "Sketch014")
sketch15.AttachmentSupport = (doc.getObject("YZ_Plane"), [""])
sketch15.MapMode = "FlatFace"
sketch15.AttachmentOffset = App.Placement(App.Vector(0, 0, 26.939748), App.Rotation())
sketch15.addGeometry(Part.LineSegment(App.Vector(29.8, -12.7, 0), App.Vector(22.9, -1.6, 0)), False)
sketch15.addGeometry(Part.ArcOfCircle(Part.Circle(App.Vector(25.4, 0, 0), App.Vector(0, 0, 1), 3), math.radians(148), math.radians(212)), False)
sketch15.addGeometry(Part.LineSegment(App.Vector(22.9, 1.6, 0), App.Vector(29.8, 12.7, 0)), False)
sketch15.addGeometry(Part.LineSegment(App.Vector(29.8, 12.7, 0), App.Vector(0, 12.7, 0)), False)
sketch15.addGeometry(Part.LineSegment(App.Vector(0, 12.7, 0), App.Vector(0, -12.7, 0)), False)
sketch15.addGeometry(Part.LineSegment(App.Vector(0, -12.7, 0), App.Vector(29.8, -12.7, 0)), False)
sketch15.addConstraint(Sketcher.Constraint("Tangent", 0, 2, 1, 2))
sketch15.addConstraint(Sketcher.Constraint("Tangent", 1, 1, 2, 1))
sketch15.addConstraint(Sketcher.Constraint("Coincident", 2, 2, 3, 1))
sketch15.addConstraint(Sketcher.Constraint("Coincident", 3, 2, 4, 1))
sketch15.addConstraint(Sketcher.Constraint("Coincident", 4, 2, 5, 1))
sketch15.addConstraint(Sketcher.Constraint("Coincident", 5, 2, 0, 1))
sketch15.addConstraint(Sketcher.Constraint("Horizontal", 3))
sketch15.addConstraint(Sketcher.Constraint("Vertical", 4))
sketch15.addConstraint(Sketcher.Constraint("Horizontal", 5))
sketch15.addConstraint(Sketcher.Constraint("Symmetric", 3, 2, 4, 2, -1, 1))
sketch15.addConstraint(Sketcher.Constraint("Symmetric", 0, 2, 1, 1, -1))
sketch15.addConstraint(Sketcher.Constraint("DistanceY", 4, 2, 4, 1, Q("1 in")))
sketch15.addConstraint(Sketcher.Constraint("DistanceX", -1, 1, 1, 3, Q("1 in")))
sketch15.addConstraint(Sketcher.Constraint("Radius", 1, 3.0))
sketch15.addConstraint(Sketcher.Constraint("DistanceY", 0, 2, -1, 1, Q("0.0625 in")))
pad8 = body.newObject("PartDesign::Pad", "Pad007")
pad8.Profile = sketch15
pad8.Length = Q("0.3 in")

sketch16 = body.newObject("Sketcher::SketchObject", "Sketch015")
sketch16.AttachmentSupport = (doc.getObject("YZ_Plane"), [""])
sketch16.MapMode = "FlatFace"
sketch16.AttachmentOffset = App.Placement(App.Vector(0, 0, -23.764748), App.Rotation())
sketch16.addGeometry(Part.Circle(App.Vector(25.4, 0, 0), App.Vector(0, 0, 1), 3), False)
sketch16.addConstraint(Sketcher.Constraint("PointOnObject", 0, 3, -1))
sketch16.addConstraint(Sketcher.Constraint("DistanceX", -1, 1, 0, 3, Q("1 in")))
sketch16.addConstraint(Sketcher.Constraint("Diameter", 0, 6.0))
pocket6 = body.newObject("PartDesign::Pocket", "Pocket005")
pocket6.Profile = sketch16
pocket6.Type = "ThroughAll"
pocket6.Midplane = True

doc.recompute()
